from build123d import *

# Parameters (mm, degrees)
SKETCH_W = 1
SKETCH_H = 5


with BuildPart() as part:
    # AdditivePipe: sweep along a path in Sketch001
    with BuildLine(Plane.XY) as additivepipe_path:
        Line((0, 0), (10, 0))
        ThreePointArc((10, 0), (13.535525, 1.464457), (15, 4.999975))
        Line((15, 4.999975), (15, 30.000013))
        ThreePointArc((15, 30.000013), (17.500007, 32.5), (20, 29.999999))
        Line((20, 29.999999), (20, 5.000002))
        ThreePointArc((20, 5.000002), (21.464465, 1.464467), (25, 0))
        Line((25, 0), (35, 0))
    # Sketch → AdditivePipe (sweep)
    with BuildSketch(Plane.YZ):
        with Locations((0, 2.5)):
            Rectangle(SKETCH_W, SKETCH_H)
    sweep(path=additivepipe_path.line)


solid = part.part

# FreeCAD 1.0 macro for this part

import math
import FreeCAD as App
import Part
import Sketcher
from FreeCAD import Vector

doc = App.newDocument("Part")
params = doc.addObject("Spreadsheet::Sheet", "Params")
for row, (alias, value) in enumerate([
    ("sketch1_width", "1 mm"),
    ("sketch1_height", "5 mm"),
    ("sketch2_radius", "5 mm"),
    ("sketch2_radius2", "2.5 mm"),
    ("sketch2_width", "10 mm"),
], start=1):
    params.set(f"A{row}", alias)
    params.set(f"B{row}", "=" + value)
    params.setAlias(f"B{row}", alias)

body = doc.addObject("PartDesign::Body", "Body")

sketch1 = doc.addObject("Sketcher::SketchObject", "Sketch")
body.addObject(sketch1)
sketch1.AttachmentSupport = (doc.YZ_Plane, [""])
sketch1.MapMode = "FlatFace"
sketch1.addGeometry([
    Part.LineSegment(Vector(-0.5, 5, 0), Vector(-0.5, 0, 0)),
    Part.LineSegment(Vector(-0.5, 0, 0), Vector(0.5, 0, 0)),
    Part.LineSegment(Vector(0.5, 0, 0), Vector(0.5, 5, 0)),
    Part.LineSegment(Vector(0.5, 5, 0), Vector(-0.5, 5, 0)),
], False)
sketch1.addConstraint([
    Sketcher.Constraint("Coincident", 0, 2, 1, 1),
    Sketcher.Constraint("Coincident", 1, 2, 2, 1),
    Sketcher.Constraint("Coincident", 2, 2, 3, 1),
    Sketcher.Constraint("Coincident", 3, 2, 0, 1),
    Sketcher.Constraint("Vertical", 0),
    Sketcher.Constraint("Horizontal", 1),
    Sketcher.Constraint("Vertical", 2),
    Sketcher.Constraint("Horizontal", 3),
    Sketcher.Constraint("Symmetric", 0, 2, 1, 2, -1, 1),
    Sketcher.Constraint("DistanceX", 1, 1, 1, 2, 1.0),
    Sketcher.Constraint("DistanceY", 0, 2, 0, 1, 5.0),
])
sketch1.setExpression("Constraints[9]", "Params.sketch1_width")
sketch1.setExpression("Constraints[10]", "Params.sketch1_height")

sketch2 = doc.addObject("Sketcher::SketchObject", "Sketch001")
body.addObject(sketch2)
sketch2.AttachmentSupport = (doc.XY_Plane, [""])
sketch2.MapMode = "FlatFace"
sketch2.addGeometry([
    Part.LineSegment(Vector(0, 0, 0), Vector(10, 0, 0)),
    Part.ArcOfCircle(Part.Circle(Vector(10, 5, 0), Vector(0, 0, 1), 5), math.radians(-90), math.radians(0)),
    Part.LineSegment(Vector(15, 5, 0), Vector(15, 30, 0)),
    Part.ArcOfCircle(Part.Circle(Vector(17.5, 30, 0), Vector(0, 0, 1), 2.5), math.radians(0), math.radians(180)),
    Part.LineSegment(Vector(20, 30, 0), Vector(20, 5, 0)),
    Part.ArcOfCircle(Part.Circle(Vector(25, 5, 0), Vector(0, 0, 1), 5), math.radians(180), math.radians(270)),
    Part.LineSegment(Vector(25, 0, 0), Vector(35, 0, 0)),
], False)
sketch2.addConstraint([
    Sketcher.Constraint("Tangent", 0, 2, 1, 1),
    Sketcher.Constraint("Coincident", 1, 2, 2, 1),
    Sketcher.Constraint("Coincident", 2, 2, 3, 2),
    Sketcher.Constraint("Tangent", 3, 1, 4, 1),
    Sketcher.Constraint("Tangent", 4, 2, 5, 1),
    Sketcher.Constraint("Tangent", 5, 2, 6, 1),
    Sketcher.Constraint("Horizontal", 0),
    Sketcher.Constraint("Vertical", 2),
    Sketcher.Constraint("Vertical", 4),
    Sketcher.Constraint("Horizontal", 6),
    Sketcher.Constraint("Coincident", 0, 1, -1, 1),
    Sketcher.Constraint("Equal", 1, 5),
    Sketcher.Constraint("PointOnObject", 5, 2, -1),
    Sketcher.Constraint("Equal", 0, 6),
    Sketcher.Constraint("Radius", 1, 5.0),
    Sketcher.Constraint("Radius", 3, 2.5),
    Sketcher.Constraint("DistanceX", 0, 1, 0, 2, 10.0),
    Sketcher.Constraint("DistanceY", -1, 1, 3, 3, 30.0),
    Sketcher.Constraint("DistanceY", 2, 1, 2, 2, 25.000038),
    Sketcher.Constraint("DistanceY", -1, 1, 1, 2, 4.999975),
])
sketch2.setExpression("Constraints[14]", "Params.sketch2_radius")
sketch2.setExpression("Constraints[15]", "Params.sketch2_radius2")
sketch2.setExpression("Constraints[16]", "Params.sketch2_width")
doc.recompute()

additivepipe = doc.addObject("PartDesign::AdditivePipe", "AdditivePipe")
body.addObject(additivepipe)
additivepipe.Profile = sketch1
additivepipe.Spine = (sketch2, ["Edge1", "Edge2", "Edge3", "Edge4", "Edge5", "Edge6", "Edge7"])

doc.recompute()
